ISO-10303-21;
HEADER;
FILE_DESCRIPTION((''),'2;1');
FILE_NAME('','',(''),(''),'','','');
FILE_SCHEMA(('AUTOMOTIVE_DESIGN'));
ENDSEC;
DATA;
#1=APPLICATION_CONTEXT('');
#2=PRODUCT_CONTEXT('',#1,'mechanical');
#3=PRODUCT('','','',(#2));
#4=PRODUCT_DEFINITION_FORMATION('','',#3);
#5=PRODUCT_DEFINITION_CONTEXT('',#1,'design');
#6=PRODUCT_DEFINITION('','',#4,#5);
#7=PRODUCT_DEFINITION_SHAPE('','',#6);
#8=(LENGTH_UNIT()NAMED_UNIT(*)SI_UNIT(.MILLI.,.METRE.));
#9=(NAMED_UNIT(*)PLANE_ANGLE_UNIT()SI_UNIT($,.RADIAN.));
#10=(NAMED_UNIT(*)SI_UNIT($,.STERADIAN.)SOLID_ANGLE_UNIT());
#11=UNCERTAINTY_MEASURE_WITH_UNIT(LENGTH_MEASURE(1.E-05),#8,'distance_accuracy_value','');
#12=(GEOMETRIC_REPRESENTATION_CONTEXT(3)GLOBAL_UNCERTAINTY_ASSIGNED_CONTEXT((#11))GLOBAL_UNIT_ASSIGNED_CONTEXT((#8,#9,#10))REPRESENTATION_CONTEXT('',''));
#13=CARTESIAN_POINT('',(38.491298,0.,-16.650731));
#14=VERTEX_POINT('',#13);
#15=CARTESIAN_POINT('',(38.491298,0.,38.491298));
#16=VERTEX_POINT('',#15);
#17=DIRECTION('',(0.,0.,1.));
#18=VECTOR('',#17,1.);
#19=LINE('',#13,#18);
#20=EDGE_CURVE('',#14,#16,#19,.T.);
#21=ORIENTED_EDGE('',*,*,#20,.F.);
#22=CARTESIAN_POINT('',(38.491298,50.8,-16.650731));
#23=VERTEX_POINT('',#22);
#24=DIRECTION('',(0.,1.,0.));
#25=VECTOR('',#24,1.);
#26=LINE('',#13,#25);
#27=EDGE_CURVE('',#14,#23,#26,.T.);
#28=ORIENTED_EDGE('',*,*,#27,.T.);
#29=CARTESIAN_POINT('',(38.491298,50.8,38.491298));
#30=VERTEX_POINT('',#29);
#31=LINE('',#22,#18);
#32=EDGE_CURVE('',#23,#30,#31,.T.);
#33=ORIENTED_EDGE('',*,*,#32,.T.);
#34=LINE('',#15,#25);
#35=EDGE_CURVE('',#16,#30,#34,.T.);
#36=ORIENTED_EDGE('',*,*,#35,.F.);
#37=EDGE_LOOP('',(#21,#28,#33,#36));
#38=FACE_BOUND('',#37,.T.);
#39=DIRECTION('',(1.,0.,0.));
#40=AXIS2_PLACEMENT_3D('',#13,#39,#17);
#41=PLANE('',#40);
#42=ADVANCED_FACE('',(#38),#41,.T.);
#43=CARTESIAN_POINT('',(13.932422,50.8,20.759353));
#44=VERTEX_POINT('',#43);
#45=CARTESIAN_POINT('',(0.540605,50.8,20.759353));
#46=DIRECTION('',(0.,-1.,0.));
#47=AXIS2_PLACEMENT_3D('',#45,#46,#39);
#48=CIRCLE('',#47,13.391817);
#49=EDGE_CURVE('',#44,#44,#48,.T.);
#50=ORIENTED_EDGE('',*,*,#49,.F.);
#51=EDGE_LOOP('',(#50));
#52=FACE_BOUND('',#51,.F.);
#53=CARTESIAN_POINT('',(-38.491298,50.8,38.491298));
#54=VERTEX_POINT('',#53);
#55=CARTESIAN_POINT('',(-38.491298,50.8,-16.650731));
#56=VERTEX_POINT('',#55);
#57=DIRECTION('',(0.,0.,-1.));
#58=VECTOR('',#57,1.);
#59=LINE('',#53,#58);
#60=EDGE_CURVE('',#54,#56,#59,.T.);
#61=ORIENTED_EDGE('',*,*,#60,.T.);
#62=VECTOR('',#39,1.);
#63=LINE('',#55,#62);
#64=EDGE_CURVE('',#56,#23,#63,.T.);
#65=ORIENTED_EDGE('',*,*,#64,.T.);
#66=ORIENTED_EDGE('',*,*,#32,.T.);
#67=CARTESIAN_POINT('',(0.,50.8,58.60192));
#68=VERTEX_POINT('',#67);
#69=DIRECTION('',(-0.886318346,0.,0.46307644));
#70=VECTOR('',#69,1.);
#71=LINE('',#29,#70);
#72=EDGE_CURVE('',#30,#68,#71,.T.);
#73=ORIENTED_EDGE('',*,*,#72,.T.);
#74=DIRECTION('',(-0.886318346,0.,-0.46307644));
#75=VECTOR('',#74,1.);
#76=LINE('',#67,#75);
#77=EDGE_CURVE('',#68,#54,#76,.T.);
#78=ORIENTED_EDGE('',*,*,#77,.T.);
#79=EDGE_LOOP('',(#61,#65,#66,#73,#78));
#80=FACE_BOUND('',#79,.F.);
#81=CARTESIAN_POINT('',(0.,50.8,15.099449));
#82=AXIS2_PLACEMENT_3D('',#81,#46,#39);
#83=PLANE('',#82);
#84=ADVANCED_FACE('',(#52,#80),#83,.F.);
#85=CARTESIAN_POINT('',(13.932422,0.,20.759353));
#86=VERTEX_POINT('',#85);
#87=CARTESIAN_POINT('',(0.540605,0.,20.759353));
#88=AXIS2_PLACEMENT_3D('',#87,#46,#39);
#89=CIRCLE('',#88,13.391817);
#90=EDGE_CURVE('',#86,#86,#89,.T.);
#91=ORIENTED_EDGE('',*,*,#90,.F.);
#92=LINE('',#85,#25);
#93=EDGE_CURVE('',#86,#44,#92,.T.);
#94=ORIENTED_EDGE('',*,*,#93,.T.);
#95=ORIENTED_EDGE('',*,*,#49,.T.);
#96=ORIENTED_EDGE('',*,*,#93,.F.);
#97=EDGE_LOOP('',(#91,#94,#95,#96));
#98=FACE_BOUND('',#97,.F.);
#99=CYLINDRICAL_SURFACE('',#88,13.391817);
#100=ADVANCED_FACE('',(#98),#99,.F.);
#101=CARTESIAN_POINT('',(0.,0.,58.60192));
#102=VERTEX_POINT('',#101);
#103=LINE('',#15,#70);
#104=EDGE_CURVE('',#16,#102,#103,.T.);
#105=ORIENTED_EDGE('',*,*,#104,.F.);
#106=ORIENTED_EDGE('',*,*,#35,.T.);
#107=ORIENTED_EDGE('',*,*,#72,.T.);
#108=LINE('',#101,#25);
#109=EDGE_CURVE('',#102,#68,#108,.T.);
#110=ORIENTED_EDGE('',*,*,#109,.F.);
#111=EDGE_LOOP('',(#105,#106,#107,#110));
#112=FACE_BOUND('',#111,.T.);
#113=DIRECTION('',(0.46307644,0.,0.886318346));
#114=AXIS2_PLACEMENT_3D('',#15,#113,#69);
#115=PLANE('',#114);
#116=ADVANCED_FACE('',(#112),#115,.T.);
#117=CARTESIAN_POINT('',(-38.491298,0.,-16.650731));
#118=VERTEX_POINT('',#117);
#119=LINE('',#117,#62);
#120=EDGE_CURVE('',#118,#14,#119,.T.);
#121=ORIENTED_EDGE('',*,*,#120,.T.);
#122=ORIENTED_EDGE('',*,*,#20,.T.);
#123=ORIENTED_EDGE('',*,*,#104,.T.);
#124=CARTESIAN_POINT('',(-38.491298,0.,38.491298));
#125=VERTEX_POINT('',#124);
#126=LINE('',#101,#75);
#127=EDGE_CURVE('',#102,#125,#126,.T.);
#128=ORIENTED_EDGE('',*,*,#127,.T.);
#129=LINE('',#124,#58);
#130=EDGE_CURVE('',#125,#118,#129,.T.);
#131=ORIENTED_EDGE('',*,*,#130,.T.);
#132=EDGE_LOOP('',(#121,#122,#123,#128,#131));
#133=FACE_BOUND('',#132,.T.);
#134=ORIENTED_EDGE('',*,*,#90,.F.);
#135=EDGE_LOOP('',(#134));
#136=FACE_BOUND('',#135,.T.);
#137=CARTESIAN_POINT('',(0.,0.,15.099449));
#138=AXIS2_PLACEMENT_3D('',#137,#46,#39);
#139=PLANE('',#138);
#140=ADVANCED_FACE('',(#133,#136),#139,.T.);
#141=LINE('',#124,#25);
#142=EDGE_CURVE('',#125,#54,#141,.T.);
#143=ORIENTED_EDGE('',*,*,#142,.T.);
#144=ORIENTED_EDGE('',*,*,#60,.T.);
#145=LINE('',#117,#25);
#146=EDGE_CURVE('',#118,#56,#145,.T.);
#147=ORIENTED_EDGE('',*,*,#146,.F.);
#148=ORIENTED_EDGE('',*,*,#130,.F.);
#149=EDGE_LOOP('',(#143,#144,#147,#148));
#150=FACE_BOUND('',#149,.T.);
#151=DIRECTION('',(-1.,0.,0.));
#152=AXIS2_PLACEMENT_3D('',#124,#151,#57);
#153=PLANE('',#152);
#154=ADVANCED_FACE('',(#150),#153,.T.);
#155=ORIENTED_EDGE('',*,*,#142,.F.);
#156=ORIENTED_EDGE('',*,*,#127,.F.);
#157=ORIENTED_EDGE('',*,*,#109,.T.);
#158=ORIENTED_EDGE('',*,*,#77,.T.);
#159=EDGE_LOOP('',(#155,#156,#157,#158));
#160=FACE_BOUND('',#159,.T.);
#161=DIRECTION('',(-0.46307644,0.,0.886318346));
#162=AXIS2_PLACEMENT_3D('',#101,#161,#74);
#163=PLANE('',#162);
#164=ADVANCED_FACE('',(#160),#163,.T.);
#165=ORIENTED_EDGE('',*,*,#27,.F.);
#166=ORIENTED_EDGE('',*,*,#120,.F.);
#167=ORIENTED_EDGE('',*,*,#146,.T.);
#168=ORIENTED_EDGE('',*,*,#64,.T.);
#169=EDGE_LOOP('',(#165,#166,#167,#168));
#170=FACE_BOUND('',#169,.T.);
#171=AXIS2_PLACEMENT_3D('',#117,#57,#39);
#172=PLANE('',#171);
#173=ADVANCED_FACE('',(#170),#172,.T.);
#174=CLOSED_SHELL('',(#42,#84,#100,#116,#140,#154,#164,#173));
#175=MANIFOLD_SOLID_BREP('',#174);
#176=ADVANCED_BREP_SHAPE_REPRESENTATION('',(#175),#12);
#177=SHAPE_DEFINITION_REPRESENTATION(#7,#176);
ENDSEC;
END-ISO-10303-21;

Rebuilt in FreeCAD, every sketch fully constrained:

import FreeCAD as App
import Part
import Sketcher

V = App.Vector
Q = App.Units.Quantity

doc = App.newDocument("Part")
body = doc.addObject("PartDesign::Body", "Body")

# Sketch on XZ plane
sketch1 = body.newObject("Sketcher::SketchObject", "Sketch")
sketch1.AttachmentSupport = (doc.getObject("XZ_Plane"), [""])
sketch1.MapMode = "FlatFace"
sketch1.addGeometry(Part.LineSegment(V(38.491298, 38.491298, 0), V(0, 58.60192, 0)), False)
sketch1.addGeometry(Part.LineSegment(V(0, 58.60192, 0), V(-38.491298, 38.491298, 0)), False)
sketch1.addGeometry(Part.LineSegment(V(-38.491298, 38.491298, 0), V(-38.491298, -16.650731, 0)), False)
sketch1.addGeometry(Part.LineSegment(V(-38.491298, -16.650731, 0), V(38.491298, -16.650731, 0)), False)
sketch1.addGeometry(Part.LineSegment(V(38.491298, -16.650731, 0), V(38.491298, 38.491298, 0)), False)
sketch1.addConstraint(Sketcher.Constraint("Coincident", 0, 2, 1, 1))
sketch1.addConstraint(Sketcher.Constraint("Coincident", 1, 2, 2, 1))
sketch1.addConstraint(Sketcher.Constraint("Coincident", 2, 2, 3, 1))
sketch1.addConstraint(Sketcher.Constraint("Coincident", 3, 2, 4, 1))
sketch1.addConstraint(Sketcher.Constraint("Coincident", 4, 2, 0, 1))
sketch1.addConstraint(Sketcher.Constraint("Vertical", 2))
sketch1.addConstraint(Sketcher.Constraint("Horizontal", 3))
sketch1.addConstraint(Sketcher.Constraint("Vertical", 4))
sketch1.addConstraint(Sketcher.Constraint("Symmetric", 1, 2, 4, 2, -2))
sketch1.addConstraint(Sketcher.Constraint("PointOnObject", 0, 2, -2))
sketch1.addConstraint(Sketcher.Constraint("Distance", 0, Q("43.428299 mm")))
sketch1.addConstraint(Sketcher.Constraint("DistanceY", 2, 2, 2, 1, Q("55.142029 mm")))
sketch1.addConstraint(Sketcher.Constraint("DistanceX", 3, 1, 3, 2, Q("76.982596 mm")))
sketch1.addConstraint(Sketcher.Constraint("DistanceY", -1, 1, 0, 2, Q("58.60192 mm")))
pad1 = body.newObject("PartDesign::Pad", "Pad")
pad1.Profile = sketch1
pad1.Length = Q("2 in")
pad1.Reversed = True

# Sketch on XZ plane
sketch2 = body.newObject("Sketcher::SketchObject", "Sketch001")
sketch2.AttachmentSupport = (doc.getObject("XZ_Plane"), [""])
sketch2.MapMode = "FlatFace"
sketch2.addGeometry(Part.Circle(V(0.540605, 20.759353, 0), V(0, 0, 1), 13.391817), False)
sketch2.addConstraint(Sketcher.Constraint("Diameter", 0, Q("26.783634 mm")))
sketch2.addConstraint(Sketcher.Constraint("DistanceX", -1, 1, 0, 3, Q("0.540605 mm")))
sketch2.addConstraint(Sketcher.Constraint("DistanceY", -1, 1, 0, 3, Q("20.759353 mm")))
pocket1 = body.newObject("PartDesign::Pocket", "Pocket")
pocket1.Profile = sketch2
pocket1.Type = "ThroughAll"

doc.recompute()
